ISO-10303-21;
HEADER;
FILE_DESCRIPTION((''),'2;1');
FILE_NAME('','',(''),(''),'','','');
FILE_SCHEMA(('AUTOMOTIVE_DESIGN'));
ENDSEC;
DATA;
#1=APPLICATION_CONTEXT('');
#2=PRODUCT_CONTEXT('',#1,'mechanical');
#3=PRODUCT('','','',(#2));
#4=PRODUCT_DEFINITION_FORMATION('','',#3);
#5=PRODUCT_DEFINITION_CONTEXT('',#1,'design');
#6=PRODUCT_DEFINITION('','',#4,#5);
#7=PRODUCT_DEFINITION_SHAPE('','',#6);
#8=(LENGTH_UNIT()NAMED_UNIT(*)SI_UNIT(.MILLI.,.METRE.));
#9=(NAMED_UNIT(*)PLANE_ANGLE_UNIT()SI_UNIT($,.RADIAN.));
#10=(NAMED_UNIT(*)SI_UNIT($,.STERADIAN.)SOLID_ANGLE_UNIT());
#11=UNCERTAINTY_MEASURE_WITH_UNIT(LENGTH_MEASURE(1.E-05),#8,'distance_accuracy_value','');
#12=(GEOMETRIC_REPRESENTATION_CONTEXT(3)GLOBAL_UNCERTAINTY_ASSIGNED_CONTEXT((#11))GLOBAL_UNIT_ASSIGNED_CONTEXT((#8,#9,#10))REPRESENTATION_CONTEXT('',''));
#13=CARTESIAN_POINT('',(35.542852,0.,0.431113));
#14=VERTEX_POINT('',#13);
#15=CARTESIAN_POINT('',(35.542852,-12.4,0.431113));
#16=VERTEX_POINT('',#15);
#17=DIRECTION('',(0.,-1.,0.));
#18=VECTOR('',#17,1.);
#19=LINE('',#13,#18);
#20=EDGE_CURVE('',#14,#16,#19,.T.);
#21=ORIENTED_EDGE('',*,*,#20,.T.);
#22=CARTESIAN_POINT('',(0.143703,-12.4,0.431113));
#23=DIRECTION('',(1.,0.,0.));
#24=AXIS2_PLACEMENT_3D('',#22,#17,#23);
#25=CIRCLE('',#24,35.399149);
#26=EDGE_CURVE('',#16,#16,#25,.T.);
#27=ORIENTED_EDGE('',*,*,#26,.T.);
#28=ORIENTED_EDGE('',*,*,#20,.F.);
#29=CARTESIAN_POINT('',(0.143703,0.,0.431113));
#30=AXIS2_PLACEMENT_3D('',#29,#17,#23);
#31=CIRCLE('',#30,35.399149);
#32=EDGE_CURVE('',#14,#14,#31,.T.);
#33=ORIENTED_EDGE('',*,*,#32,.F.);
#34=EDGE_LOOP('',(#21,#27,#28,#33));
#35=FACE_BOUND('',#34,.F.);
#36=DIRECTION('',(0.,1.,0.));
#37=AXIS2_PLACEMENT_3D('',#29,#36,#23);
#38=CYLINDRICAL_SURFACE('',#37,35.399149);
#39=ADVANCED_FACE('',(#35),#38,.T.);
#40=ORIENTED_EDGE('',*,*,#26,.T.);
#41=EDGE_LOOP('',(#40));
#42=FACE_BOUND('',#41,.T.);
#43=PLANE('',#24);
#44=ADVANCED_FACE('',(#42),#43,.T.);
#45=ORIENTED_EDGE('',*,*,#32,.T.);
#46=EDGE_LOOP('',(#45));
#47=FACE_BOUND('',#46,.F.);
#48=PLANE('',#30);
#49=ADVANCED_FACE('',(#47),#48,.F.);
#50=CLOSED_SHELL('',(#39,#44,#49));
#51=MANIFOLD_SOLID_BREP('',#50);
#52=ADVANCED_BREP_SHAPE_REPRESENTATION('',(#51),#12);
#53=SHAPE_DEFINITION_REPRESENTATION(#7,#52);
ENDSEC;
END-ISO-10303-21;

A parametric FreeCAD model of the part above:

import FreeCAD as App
import Part
import Sketcher

V = App.Vector
Q = App.Units.Quantity

doc = App.newDocument("Part")
body = doc.addObject("PartDesign::Body", "Body")

# Sketch on XZ plane
sketch1 = doc.addObject("Sketcher::SketchObject", "Sketch")
body.addObject(sketch1)
sketch1.AttachmentSupport = (doc.XZ_Plane, [""])
sketch1.MapMode = "FlatFace"
sketch1.addGeometry(Part.Circle(V(0, 0, 0), V(0, 0, 1), 35), False)
sketch1.addConstraint([
    Sketcher.Constraint("Diameter", 0, Q("70.798297 mm")),
    Sketcher.Constraint("DistanceX", -1, 1, 0, 3, Q("0.143703 mm")),
    Sketcher.Constraint("DistanceY", -1, 1, 0, 3, Q("0.431113 mm")),
])
pad1 = doc.addObject("PartDesign::Pad", "Pad")
body.addObject(pad1)
pad1.Profile = sketch1
pad1.Length = 12.4

doc.recompute()
